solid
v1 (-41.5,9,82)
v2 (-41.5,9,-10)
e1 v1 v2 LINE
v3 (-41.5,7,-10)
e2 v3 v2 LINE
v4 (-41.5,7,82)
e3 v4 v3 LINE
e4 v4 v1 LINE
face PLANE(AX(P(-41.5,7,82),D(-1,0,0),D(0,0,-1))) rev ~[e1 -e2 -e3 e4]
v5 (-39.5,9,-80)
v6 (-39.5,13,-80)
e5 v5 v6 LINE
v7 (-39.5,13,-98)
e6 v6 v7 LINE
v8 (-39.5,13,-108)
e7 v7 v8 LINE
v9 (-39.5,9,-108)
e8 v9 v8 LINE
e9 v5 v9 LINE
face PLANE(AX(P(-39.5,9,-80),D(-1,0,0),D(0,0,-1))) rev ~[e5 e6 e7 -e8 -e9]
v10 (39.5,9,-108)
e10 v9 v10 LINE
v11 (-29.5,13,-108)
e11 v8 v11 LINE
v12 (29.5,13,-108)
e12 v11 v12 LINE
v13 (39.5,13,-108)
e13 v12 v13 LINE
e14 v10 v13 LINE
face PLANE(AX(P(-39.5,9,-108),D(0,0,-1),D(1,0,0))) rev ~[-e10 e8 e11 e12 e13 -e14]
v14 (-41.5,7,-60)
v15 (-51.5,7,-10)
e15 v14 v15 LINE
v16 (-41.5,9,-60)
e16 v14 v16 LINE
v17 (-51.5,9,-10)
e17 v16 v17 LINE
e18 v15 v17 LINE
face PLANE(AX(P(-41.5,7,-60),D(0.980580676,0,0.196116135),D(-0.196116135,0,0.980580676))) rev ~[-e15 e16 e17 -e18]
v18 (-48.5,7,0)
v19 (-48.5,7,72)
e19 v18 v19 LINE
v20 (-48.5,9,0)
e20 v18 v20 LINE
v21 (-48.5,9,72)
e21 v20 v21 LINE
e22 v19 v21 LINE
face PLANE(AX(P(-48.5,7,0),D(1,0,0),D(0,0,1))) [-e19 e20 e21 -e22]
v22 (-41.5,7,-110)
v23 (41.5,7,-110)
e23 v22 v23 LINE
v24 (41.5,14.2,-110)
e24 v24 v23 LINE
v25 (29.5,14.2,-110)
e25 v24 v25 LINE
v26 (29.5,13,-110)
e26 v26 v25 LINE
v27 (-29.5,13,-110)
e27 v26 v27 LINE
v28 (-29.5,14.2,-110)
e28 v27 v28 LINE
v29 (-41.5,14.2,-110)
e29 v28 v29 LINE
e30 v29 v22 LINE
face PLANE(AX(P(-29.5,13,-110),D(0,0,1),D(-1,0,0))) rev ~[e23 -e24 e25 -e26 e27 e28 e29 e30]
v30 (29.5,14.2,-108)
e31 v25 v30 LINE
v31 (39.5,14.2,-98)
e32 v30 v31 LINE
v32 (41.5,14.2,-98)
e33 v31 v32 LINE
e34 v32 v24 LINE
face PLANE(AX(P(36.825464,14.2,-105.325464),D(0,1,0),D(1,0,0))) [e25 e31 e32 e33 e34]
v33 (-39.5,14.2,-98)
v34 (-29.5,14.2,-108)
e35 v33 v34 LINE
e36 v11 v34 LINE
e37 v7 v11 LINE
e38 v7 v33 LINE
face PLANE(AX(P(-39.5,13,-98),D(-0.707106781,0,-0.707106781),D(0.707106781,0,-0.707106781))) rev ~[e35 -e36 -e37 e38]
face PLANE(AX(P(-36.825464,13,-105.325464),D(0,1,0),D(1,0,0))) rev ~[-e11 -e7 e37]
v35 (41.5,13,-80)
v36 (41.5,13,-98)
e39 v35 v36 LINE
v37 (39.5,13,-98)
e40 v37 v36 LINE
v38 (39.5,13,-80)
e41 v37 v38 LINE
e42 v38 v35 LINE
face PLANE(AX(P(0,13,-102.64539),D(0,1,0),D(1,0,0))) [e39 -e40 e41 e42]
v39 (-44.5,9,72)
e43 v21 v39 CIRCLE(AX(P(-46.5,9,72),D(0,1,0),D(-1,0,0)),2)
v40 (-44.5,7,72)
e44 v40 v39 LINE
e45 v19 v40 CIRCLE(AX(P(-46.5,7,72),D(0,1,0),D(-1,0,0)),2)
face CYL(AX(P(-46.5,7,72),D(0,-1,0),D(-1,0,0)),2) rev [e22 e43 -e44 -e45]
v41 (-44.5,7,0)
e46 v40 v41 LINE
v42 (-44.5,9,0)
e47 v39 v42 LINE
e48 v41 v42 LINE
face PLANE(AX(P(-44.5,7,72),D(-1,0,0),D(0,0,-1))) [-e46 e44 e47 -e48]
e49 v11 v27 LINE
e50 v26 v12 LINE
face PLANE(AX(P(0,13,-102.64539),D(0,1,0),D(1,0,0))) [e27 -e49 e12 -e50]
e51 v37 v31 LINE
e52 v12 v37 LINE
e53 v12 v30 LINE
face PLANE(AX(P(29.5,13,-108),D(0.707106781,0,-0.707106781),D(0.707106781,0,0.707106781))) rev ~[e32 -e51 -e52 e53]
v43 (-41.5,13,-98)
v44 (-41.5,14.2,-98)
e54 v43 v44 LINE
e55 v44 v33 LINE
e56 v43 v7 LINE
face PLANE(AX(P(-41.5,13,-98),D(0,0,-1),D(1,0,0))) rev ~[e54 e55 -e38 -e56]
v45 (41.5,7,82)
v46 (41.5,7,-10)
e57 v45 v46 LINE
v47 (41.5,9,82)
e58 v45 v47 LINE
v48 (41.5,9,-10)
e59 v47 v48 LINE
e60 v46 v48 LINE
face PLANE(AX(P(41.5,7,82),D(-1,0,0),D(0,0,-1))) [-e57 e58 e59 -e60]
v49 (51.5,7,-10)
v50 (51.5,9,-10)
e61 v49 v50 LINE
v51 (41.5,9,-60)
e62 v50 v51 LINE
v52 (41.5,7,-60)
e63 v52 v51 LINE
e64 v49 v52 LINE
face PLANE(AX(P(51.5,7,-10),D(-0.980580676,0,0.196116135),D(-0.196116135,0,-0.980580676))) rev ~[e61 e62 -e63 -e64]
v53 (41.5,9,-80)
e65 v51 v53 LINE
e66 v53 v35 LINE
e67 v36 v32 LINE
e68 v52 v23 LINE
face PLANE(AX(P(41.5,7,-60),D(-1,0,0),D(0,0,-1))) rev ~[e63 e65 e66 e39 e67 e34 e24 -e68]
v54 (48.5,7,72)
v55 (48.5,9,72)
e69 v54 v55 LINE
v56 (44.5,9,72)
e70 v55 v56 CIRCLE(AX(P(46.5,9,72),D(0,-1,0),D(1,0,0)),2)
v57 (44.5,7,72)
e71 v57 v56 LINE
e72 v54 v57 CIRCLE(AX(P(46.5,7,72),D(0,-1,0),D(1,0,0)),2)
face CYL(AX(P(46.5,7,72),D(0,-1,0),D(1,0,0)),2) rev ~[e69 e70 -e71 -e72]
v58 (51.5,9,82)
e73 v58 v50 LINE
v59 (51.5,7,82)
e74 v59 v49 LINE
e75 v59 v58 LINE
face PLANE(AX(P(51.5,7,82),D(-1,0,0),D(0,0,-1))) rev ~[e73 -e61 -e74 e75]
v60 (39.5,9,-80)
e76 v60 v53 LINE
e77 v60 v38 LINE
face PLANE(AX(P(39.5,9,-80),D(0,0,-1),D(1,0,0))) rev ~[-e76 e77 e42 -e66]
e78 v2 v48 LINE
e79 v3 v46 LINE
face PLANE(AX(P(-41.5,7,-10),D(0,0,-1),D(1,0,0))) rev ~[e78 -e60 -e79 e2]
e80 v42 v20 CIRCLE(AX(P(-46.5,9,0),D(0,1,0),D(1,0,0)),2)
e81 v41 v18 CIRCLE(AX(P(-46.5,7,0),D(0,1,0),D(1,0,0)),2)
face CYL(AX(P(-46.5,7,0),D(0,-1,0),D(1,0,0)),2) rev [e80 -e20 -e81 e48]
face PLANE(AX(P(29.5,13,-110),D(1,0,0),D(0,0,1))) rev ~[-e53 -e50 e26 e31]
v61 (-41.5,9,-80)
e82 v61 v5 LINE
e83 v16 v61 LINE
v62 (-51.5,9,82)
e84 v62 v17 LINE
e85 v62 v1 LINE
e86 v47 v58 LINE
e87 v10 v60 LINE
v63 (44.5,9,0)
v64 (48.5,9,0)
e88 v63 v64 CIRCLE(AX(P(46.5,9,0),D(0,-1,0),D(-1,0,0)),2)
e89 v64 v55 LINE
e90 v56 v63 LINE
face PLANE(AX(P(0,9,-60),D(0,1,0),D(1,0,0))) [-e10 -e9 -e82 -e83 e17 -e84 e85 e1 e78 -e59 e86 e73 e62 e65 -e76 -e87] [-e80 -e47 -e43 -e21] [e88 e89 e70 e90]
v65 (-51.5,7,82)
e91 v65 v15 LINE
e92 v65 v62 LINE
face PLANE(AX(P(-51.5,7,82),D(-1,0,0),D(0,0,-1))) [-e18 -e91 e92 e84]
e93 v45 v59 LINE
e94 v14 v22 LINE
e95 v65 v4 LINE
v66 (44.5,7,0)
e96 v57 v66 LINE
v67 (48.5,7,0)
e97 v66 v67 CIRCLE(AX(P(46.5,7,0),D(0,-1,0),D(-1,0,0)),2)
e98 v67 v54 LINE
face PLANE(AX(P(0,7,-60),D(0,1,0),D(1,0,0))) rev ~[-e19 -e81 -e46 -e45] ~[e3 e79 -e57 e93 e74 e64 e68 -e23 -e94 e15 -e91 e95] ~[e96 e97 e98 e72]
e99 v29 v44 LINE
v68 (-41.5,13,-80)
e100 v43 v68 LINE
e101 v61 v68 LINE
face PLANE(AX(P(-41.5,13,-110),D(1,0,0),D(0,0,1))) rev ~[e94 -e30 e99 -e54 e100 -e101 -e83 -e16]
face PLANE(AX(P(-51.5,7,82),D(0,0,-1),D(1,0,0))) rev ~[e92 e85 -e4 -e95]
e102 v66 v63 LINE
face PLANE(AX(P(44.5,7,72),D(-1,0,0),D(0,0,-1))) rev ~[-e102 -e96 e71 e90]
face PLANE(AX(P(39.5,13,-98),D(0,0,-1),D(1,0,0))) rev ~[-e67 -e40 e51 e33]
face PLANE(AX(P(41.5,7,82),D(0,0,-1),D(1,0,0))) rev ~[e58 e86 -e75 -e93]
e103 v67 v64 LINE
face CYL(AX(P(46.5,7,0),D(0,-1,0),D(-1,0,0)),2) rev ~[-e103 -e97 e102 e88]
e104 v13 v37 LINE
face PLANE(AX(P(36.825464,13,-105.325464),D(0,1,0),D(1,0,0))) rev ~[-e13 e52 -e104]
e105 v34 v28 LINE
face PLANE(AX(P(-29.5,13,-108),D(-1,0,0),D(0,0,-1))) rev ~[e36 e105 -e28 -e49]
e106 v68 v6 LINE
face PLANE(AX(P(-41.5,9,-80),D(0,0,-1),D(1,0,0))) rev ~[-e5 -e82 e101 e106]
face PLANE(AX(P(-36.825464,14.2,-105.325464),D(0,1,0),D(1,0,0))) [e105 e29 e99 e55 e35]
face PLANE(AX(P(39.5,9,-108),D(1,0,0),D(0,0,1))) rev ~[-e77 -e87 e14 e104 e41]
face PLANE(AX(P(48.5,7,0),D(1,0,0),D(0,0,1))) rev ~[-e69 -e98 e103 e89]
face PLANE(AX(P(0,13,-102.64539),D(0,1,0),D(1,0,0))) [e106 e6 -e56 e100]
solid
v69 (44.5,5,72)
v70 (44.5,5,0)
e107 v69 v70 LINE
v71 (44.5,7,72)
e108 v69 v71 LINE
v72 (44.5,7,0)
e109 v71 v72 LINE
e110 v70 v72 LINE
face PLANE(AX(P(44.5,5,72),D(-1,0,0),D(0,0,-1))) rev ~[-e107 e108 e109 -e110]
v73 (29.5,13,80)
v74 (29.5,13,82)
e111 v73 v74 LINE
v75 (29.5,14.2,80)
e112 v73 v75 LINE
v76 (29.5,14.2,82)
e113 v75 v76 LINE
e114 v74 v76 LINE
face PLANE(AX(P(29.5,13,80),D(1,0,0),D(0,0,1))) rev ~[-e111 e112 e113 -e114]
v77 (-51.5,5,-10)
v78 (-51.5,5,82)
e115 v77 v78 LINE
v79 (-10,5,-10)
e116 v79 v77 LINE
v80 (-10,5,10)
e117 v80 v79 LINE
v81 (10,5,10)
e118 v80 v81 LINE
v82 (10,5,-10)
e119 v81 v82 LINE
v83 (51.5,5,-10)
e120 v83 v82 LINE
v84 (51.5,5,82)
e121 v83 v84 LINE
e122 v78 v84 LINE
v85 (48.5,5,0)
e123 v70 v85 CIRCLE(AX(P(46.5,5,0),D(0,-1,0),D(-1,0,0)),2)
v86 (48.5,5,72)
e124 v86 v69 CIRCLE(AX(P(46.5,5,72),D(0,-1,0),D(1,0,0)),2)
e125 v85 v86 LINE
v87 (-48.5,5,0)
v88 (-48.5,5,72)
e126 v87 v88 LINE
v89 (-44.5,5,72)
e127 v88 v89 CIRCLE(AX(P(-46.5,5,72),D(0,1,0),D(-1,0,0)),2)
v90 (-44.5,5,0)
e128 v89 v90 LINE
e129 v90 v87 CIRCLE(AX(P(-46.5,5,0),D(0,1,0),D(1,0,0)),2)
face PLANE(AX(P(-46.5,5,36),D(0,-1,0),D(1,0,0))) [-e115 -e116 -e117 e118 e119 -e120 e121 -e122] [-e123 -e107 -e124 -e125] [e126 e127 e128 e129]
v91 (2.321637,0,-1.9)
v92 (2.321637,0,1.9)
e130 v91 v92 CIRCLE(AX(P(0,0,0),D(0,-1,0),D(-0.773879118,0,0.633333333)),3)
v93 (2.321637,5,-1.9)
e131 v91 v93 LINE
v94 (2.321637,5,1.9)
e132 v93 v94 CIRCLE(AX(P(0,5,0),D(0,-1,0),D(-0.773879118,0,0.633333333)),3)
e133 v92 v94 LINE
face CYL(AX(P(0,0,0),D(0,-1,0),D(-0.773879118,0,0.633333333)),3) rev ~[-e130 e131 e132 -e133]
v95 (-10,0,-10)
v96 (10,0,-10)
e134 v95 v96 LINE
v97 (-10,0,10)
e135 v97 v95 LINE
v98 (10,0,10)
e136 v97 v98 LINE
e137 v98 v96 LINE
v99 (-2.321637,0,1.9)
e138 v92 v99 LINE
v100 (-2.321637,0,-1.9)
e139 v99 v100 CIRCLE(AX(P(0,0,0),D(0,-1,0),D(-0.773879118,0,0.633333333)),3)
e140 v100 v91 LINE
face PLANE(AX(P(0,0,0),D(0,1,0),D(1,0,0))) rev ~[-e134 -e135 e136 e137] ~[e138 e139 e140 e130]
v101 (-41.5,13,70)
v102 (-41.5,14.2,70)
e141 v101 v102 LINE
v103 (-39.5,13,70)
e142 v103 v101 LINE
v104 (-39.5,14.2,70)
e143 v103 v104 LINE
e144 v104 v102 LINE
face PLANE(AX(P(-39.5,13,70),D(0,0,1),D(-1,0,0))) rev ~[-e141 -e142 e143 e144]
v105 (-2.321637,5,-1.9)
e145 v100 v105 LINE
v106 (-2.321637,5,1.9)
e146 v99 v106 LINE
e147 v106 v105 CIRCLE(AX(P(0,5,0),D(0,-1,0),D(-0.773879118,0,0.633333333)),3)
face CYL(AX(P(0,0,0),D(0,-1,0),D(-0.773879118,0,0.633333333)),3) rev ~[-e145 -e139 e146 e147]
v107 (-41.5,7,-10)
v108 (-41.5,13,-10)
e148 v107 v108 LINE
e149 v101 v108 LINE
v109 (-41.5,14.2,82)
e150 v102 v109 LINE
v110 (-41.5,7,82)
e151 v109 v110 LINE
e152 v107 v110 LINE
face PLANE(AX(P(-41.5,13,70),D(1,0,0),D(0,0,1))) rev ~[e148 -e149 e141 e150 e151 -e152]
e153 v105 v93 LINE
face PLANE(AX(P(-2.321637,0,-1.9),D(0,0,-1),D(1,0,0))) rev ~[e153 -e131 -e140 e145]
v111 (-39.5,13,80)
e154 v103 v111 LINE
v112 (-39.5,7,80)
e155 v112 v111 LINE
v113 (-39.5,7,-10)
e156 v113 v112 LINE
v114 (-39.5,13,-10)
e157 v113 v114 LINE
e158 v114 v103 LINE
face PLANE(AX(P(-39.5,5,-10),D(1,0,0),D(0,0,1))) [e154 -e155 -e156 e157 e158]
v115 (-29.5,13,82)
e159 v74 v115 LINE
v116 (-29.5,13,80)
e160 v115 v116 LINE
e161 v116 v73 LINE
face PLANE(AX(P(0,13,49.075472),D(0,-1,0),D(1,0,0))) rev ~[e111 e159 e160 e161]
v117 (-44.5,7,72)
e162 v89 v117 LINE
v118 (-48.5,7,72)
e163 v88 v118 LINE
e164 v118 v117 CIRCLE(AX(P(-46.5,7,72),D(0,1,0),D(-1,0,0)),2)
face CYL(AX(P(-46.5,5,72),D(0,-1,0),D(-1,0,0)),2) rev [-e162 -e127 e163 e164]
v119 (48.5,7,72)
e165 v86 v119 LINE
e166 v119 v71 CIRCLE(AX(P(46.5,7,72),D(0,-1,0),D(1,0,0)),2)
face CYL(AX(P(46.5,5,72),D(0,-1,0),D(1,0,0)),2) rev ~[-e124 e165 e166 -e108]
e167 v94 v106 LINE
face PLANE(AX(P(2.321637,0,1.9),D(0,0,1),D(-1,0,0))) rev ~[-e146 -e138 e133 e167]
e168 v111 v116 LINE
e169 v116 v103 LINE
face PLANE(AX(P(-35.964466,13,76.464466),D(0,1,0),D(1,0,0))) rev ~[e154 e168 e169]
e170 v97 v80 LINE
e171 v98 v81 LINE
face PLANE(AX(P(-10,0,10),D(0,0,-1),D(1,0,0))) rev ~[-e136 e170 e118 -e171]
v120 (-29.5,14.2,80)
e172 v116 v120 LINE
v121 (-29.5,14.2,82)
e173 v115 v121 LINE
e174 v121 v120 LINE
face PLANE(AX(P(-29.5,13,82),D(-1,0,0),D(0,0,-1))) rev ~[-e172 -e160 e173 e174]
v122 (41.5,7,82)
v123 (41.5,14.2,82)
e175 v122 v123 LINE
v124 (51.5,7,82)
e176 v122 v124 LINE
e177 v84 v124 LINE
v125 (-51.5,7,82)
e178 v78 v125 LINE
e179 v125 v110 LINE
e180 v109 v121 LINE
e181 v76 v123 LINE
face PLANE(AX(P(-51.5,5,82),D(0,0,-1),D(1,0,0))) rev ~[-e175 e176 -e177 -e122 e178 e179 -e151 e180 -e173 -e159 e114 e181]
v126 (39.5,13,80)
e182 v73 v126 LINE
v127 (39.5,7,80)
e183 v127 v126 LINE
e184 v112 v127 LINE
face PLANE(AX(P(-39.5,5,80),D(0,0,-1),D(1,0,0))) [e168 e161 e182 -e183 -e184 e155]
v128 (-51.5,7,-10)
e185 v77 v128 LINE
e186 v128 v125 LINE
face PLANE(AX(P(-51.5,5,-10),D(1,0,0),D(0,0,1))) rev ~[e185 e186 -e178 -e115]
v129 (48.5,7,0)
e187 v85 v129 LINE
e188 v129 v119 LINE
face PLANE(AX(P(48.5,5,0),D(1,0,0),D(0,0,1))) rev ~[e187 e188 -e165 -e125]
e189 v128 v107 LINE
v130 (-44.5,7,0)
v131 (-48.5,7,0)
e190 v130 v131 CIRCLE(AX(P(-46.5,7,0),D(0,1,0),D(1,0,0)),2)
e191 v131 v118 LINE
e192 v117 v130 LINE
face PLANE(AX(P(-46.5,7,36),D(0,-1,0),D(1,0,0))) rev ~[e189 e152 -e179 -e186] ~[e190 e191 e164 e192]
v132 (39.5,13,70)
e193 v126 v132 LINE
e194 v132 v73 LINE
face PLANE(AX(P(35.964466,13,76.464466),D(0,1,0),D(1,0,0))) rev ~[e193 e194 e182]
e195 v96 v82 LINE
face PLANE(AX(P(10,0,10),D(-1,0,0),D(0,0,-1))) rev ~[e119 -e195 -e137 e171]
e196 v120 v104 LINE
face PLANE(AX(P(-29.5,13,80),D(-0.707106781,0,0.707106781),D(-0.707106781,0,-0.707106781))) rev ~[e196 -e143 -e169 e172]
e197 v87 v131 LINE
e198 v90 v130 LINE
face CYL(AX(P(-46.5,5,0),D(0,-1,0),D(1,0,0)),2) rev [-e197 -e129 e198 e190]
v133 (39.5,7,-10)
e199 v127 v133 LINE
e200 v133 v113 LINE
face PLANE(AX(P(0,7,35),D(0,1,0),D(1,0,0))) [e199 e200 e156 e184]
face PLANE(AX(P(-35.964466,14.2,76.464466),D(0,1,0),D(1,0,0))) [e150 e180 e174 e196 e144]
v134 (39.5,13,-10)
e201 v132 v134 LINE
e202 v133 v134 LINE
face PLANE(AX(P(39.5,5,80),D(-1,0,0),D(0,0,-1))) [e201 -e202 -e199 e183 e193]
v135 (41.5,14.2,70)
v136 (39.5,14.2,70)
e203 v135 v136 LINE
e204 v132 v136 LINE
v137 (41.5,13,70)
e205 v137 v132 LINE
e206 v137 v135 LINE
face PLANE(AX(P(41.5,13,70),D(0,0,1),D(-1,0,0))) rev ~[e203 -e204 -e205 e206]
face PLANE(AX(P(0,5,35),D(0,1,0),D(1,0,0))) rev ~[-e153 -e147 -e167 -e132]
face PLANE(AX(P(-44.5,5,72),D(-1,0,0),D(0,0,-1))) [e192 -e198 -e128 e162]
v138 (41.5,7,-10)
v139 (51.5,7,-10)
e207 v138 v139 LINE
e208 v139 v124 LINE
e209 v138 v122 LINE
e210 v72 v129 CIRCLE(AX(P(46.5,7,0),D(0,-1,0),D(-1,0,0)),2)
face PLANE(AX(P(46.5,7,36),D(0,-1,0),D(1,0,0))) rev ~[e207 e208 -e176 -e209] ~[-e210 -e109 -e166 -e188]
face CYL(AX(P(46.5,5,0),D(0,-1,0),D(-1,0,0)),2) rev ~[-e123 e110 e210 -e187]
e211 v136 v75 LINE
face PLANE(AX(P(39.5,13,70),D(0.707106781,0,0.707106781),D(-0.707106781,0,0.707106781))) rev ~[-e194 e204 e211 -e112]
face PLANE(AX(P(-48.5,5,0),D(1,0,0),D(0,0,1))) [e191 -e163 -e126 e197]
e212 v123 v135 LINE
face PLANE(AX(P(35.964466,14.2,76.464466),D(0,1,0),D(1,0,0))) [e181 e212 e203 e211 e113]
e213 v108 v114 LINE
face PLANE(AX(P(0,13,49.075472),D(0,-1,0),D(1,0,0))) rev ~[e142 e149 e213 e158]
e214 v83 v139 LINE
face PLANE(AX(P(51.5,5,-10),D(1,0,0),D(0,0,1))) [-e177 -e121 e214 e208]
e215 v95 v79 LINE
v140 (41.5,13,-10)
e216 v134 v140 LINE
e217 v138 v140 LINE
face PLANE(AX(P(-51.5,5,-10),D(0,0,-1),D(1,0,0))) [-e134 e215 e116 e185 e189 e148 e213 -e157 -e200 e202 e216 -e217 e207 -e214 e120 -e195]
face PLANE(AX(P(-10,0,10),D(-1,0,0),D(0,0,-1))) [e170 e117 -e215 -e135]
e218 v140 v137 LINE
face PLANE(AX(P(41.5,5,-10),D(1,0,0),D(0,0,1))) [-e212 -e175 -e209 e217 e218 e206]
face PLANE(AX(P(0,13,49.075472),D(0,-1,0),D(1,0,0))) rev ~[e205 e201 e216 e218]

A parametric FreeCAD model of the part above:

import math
import FreeCAD as App
import Part
import Sketcher
Q = App.Units.Quantity

doc = App.newDocument("Part")
body = doc.addObject("PartDesign::Body", "Body")

sketch1 = body.newObject("Sketcher::SketchObject", "Sketch")
sketch1.AttachmentSupport = (doc.getObject("XZ_Plane"), [""])
sketch1.MapMode = "FlatFace"
sketch1.addGeometry(Part.LineSegment(App.Vector(-10, -10, 0), App.Vector(-10, 10, 0)), False)
sketch1.addGeometry(Part.LineSegment(App.Vector(-10, 10, 0), App.Vector(10, 10, 0)), False)
sketch1.addGeometry(Part.LineSegment(App.Vector(10, 10, 0), App.Vector(10, -10, 0)), False)
sketch1.addGeometry(Part.LineSegment(App.Vector(10, -10, 0), App.Vector(-10, -10, 0)), False)
sketch1.addGeometry(Part.ArcOfCircle(Part.Circle(App.Vector(0, 0, 0), App.Vector(0, 0, 1), 3), math.radians(141), math.radians(219)), False)
sketch1.addGeometry(Part.LineSegment(App.Vector(-2.3, -1.9, 0), App.Vector(2.3, -1.9, 0)), False)
sketch1.addGeometry(Part.ArcOfCircle(Part.Circle(App.Vector(0, 0, 0), App.Vector(0, 0, 1), 3), math.radians(-39), math.radians(39)), False)
sketch1.addGeometry(Part.LineSegment(App.Vector(2.3, 1.9, 0), App.Vector(-2.3, 1.9, 0)), False)
sketch1.addConstraint(Sketcher.Constraint("Coincident", 0, 2, 1, 1))
sketch1.addConstraint(Sketcher.Constraint("Coincident", 1, 2, 2, 1))
sketch1.addConstraint(Sketcher.Constraint("Coincident", 2, 2, 3, 1))
sketch1.addConstraint(Sketcher.Constraint("Coincident", 3, 2, 0, 1))
sketch1.addConstraint(Sketcher.Constraint("Coincident", 4, 2, 5, 1))
sketch1.addConstraint(Sketcher.Constraint("Coincident", 5, 2, 6, 1))
sketch1.addConstraint(Sketcher.Constraint("Coincident", 6, 2, 7, 1))
sketch1.addConstraint(Sketcher.Constraint("Coincident", 7, 2, 4, 1))
sketch1.addConstraint(Sketcher.Constraint("Vertical", 0))
sketch1.addConstraint(Sketcher.Constraint("Horizontal", 1))
sketch1.addConstraint(Sketcher.Constraint("Vertical", 2))
sketch1.addConstraint(Sketcher.Constraint("Horizontal", 3))
sketch1.addConstraint(Sketcher.Constraint("Horizontal", 5))
sketch1.addConstraint(Sketcher.Constraint("Horizontal", 7))
sketch1.addConstraint(Sketcher.Constraint("Coincident", 4, 3, -1, 1))
sketch1.addConstraint(Sketcher.Constraint("Coincident", 6, 3, -1, 1))
sketch1.addConstraint(Sketcher.Constraint("Equal", 4, 6))
sketch1.addConstraint(Sketcher.Constraint("Symmetric", 0, 2, 2, 2, -1, 1))
sketch1.addConstraint(Sketcher.Constraint("Vertical", 5, 2, 6, 2))
sketch1.addConstraint(Sketcher.Constraint("Equal", 3, 0))
sketch1.addConstraint(Sketcher.Constraint("Radius", 4, Q("3 mm")))
sketch1.addConstraint(Sketcher.Constraint("DistanceX", 1, 1, 1, 2, Q("20 mm")))
sketch1.addConstraint(Sketcher.Constraint("DistanceY", 4, 2, -1, 1, Q("1.9 mm")))
pad1 = body.newObject("PartDesign::Pad", "Pad")
pad1.Profile = sketch1
pad1.Length = 5
pad1.Reversed = True

sketch2 = body.newObject("Sketcher::SketchObject", "Sketch001")
sketch2.AttachmentSupport = (doc.getObject("XZ_Plane"), [""])
sketch2.MapMode = "FlatFace"
sketch2.AttachmentOffset = App.Placement(App.Vector(0, 0, -5), App.Rotation())
sketch2.addGeometry(Part.LineSegment(App.Vector(-40, -10, 0), App.Vector(-40, 80, 0)), False)
sketch2.addGeometry(Part.LineSegment(App.Vector(-40, 80, 0), App.Vector(40, 80, 0)), False)
sketch2.addGeometry(Part.LineSegment(App.Vector(40, 80, 0), App.Vector(40, -10, 0)), False)
sketch2.addGeometry(Part.LineSegment(App.Vector(40, -10, 0), App.Vector(-40, -10, 0)), False)
sketch2.addConstraint(Sketcher.Constraint("Coincident", 0, 2, 1, 1))
sketch2.addConstraint(Sketcher.Constraint("Coincident", 1, 2, 2, 1))
sketch2.addConstraint(Sketcher.Constraint("Coincident", 2, 2, 3, 1))
sketch2.addConstraint(Sketcher.Constraint("Coincident", 3, 2, 0, 1))
sketch2.addConstraint(Sketcher.Constraint("Vertical", 0))
sketch2.addConstraint(Sketcher.Constraint("Horizontal", 1))
sketch2.addConstraint(Sketcher.Constraint("Vertical", 2))
sketch2.addConstraint(Sketcher.Constraint("Horizontal", 3))
sketch2.addConstraint(Sketcher.Constraint("DistanceX", 1, 1, 1, 2, Q("79 mm")))
sketch2.addConstraint(Sketcher.Constraint("DistanceY", 0, 1, 0, 2, Q("90 mm")))
sketch2.addConstraint(Sketcher.Constraint("DistanceY", -1, 1, 0, 2, Q("80 mm")))
sketch2.addConstraint(Sketcher.Constraint("DistanceX", 0, 2, -1, 1, Q("39.5 mm")))
pad2 = body.newObject("PartDesign::Pad", "Pad001")
pad2.Profile = sketch2
pad2.Length = 2
pad2.Reversed = True

sketch3 = body.newObject("Sketcher::SketchObject", "Sketch002")
sketch3.AttachmentSupport = (doc.getObject("XZ_Plane"), [""])
sketch3.MapMode = "FlatFace"
sketch3.AttachmentOffset = App.Placement(App.Vector(0, 0, -5), App.Rotation())
sketch3.addGeometry(Part.LineSegment(App.Vector(39.5, 80, 0), App.Vector(39.5, -10, 0)), False)
sketch3.addGeometry(Part.LineSegment(App.Vector(39.5, -10, 0), App.Vector(41.5, -10, 0)), False)
sketch3.addGeometry(Part.LineSegment(App.Vector(41.5, -10, 0), App.Vector(41.5, 82, 0)), False)
sketch3.addGeometry(Part.LineSegment(App.Vector(41.5, 82, 0), App.Vector(-41.5, 82, 0)), False)
sketch3.addGeometry(Part.LineSegment(App.Vector(-41.5, 82, 0), App.Vector(-41.5, -10, 0)), False)
sketch3.addGeometry(Part.LineSegment(App.Vector(-41.5, -10, 0), App.Vector(-39.5, -10, 0)), False)
sketch3.addGeometry(Part.LineSegment(App.Vector(-39.5, -10, 0), App.Vector(-39.5, 80, 0)), False)
sketch3.addGeometry(Part.LineSegment(App.Vector(-39.5, 80, 0), App.Vector(39.5, 80, 0)), False)
sketch3.addConstraint(Sketcher.Constraint("Coincident", 0, 2, 1, 1))
sketch3.addConstraint(Sketcher.Constraint("Coincident", 1, 2, 2, 1))
sketch3.addConstraint(Sketcher.Constraint("Coincident", 2, 2, 3, 1))
sketch3.addConstraint(Sketcher.Constraint("Coincident", 3, 2, 4, 1))
sketch3.addConstraint(Sketcher.Constraint("Coincident", 4, 2, 5, 1))
sketch3.addConstraint(Sketcher.Constraint("Coincident", 5, 2, 6, 1))
sketch3.addConstraint(Sketcher.Constraint("Coincident", 6, 2, 7, 1))
sketch3.addConstraint(Sketcher.Constraint("Coincident", 7, 2, 0, 1))
sketch3.addConstraint(Sketcher.Constraint("Vertical", 0))
sketch3.addConstraint(Sketcher.Constraint("Horizontal", 1))
sketch3.addConstraint(Sketcher.Constraint("Vertical", 2))
sketch3.addConstraint(Sketcher.Constraint("Horizontal", 3))
sketch3.addConstraint(Sketcher.Constraint("Vertical", 4))
sketch3.addConstraint(Sketcher.Constraint("Horizontal", 5))
sketch3.addConstraint(Sketcher.Constraint("Vertical", 6))
sketch3.addConstraint(Sketcher.Constraint("Horizontal", 7))
sketch3.addConstraint(Sketcher.Constraint("Symmetric", 1, 2, 4, 2, -2))
sketch3.addConstraint(Sketcher.Constraint("Equal", 1, 5))
sketch3.addConstraint(Sketcher.Constraint("DistanceX", 1, 1, 1, 2, Q("2 mm")))
sketch3.addConstraint(Sketcher.Constraint("DistanceX", 3, 2, 3, 1, Q("83 mm")))
sketch3.addConstraint(Sketcher.Constraint("DistanceY", 0, 2, 0, 1, Q("90 mm")))
sketch3.addConstraint(Sketcher.Constraint("DistanceY", 2, 1, 2, 2, Q("92 mm")))
sketch3.addConstraint(Sketcher.Constraint("DistanceY", 0, 2, -1, 1, Q("10 mm")))
pad3 = body.newObject("PartDesign::Pad", "Pad002")
pad3.Profile = sketch3
pad3.Length = 8
pad3.Reversed = True

sketch4 = body.newObject("Sketcher::SketchObject", "Sketch003")
sketch4.AttachmentSupport = (doc.getObject("XZ_Plane"), [""])
sketch4.MapMode = "FlatFace"
sketch4.AttachmentOffset = App.Placement(App.Vector(0, 0, -13), App.Rotation())
sketch4.addGeometry(Part.LineSegment(App.Vector(-29.5, 80, 0), App.Vector(-39.5, 70, 0)), False)
sketch4.addGeometry(Part.LineSegment(App.Vector(-39.5, 70, 0), App.Vector(-41.5, 70, 0)), False)
sketch4.addGeometry(Part.LineSegment(App.Vector(-41.5, 70, 0), App.Vector(-41.5, 82, 0)), False)
sketch4.addGeometry(Part.LineSegment(App.Vector(-41.5, 82, 0), App.Vector(-29.5, 82, 0)), False)
sketch4.addGeometry(Part.LineSegment(App.Vector(-29.5, 82, 0), App.Vector(-29.5, 80, 0)), False)
sketch4.addGeometry(Part.LineSegment(App.Vector(39.5, 70, 0), App.Vector(29.5, 80, 0)), False)
sketch4.addGeometry(Part.LineSegment(App.Vector(29.5, 80, 0), App.Vector(29.5, 82, 0)), False)
sketch4.addGeometry(Part.LineSegment(App.Vector(29.5, 82, 0), App.Vector(41.5, 82, 0)), False)
sketch4.addGeometry(Part.LineSegment(App.Vector(41.5, 82, 0), App.Vector(41.5, 70, 0)), False)
sketch4.addGeometry(Part.LineSegment(App.Vector(41.5, 70, 0), App.Vector(39.5, 70, 0)), False)
sketch4.addConstraint(Sketcher.Constraint("Coincident", 0, 2, 1, 1))
sketch4.addConstraint(Sketcher.Constraint("Coincident", 1, 2, 2, 1))
sketch4.addConstraint(Sketcher.Constraint("Coincident", 2, 2, 3, 1))
sketch4.addConstraint(Sketcher.Constraint("Coincident", 3, 2, 4, 1))
sketch4.addConstraint(Sketcher.Constraint("Coincident", 4, 2, 0, 1))
sketch4.addConstraint(Sketcher.Constraint("Coincident", 5, 2, 6, 1))
sketch4.addConstraint(Sketcher.Constraint("Coincident", 6, 2, 7, 1))
sketch4.addConstraint(Sketcher.Constraint("Coincident", 7, 2, 8, 1))
sketch4.addConstraint(Sketcher.Constraint("Coincident", 8, 2, 9, 1))
sketch4.addConstraint(Sketcher.Constraint("Coincident", 9, 2, 5, 1))
sketch4.addConstraint(Sketcher.Constraint("Horizontal", 1))
sketch4.addConstraint(Sketcher.Constraint("Vertical", 2))
sketch4.addConstraint(Sketcher.Constraint("Horizontal", 3))
sketch4.addConstraint(Sketcher.Constraint("Vertical", 4))
sketch4.addConstraint(Sketcher.Constraint("Vertical", 6))
sketch4.addConstraint(Sketcher.Constraint("Horizontal", 7))
sketch4.addConstraint(Sketcher.Constraint("Vertical", 8))
sketch4.addConstraint(Sketcher.Constraint("Horizontal", 9))
sketch4.addConstraint(Sketcher.Constraint("Symmetric", 4, 2, 5, 2, -2))
sketch4.addConstraint(Sketcher.Constraint("Symmetric", 2, 2, 7, 2, -2))
sketch4.addConstraint(Sketcher.Constraint("Symmetric", 0, 2, 9, 2, -2))
sketch4.addConstraint(Sketcher.Constraint("Perpendicular", 0, 5))
sketch4.addConstraint(Sketcher.Constraint("Equal", 7, 2))
sketch4.addConstraint(Sketcher.Constraint("DistanceX", 1, 2, 1, 1, Q("2 mm")))
sketch4.addConstraint(Sketcher.Constraint("DistanceX", 3, 1, 3, 2, Q("12 mm")))
sketch4.addConstraint(Sketcher.Constraint("DistanceY", -1, 1, 0, 2, Q("70 mm")))
sketch4.addConstraint(Sketcher.Constraint("DistanceX", 4, 2, 5, 2, Q("59 mm")))
pad4 = body.newObject("PartDesign::Pad", "Pad003")
pad4.Profile = sketch4
pad4.Length = 1.2
pad4.Reversed = True

sketch5 = body.newObject("Sketcher::SketchObject", "Sketch004")
sketch5.AttachmentSupport = (doc.getObject("XZ_Plane"), [""])
sketch5.MapMode = "FlatFace"
sketch5.AttachmentOffset = App.Placement(App.Vector(0, 0, -5), App.Rotation())
sketch5.addGeometry(Part.LineSegment(App.Vector(-51.5, 82, 0), App.Vector(-51.5, -10, 0)), False)
sketch5.addGeometry(Part.LineSegment(App.Vector(-51.5, -10, 0), App.Vector(-41.5, -10, 0)), False)
sketch5.addGeometry(Part.LineSegment(App.Vector(-41.5, -10, 0), App.Vector(-41.5, 82, 0)), False)
sketch5.addGeometry(Part.LineSegment(App.Vector(-41.5, 82, 0), App.Vector(-51.5, 82, 0)), False)
sketch5.addGeometry(Part.ArcOfCircle(Part.Circle(App.Vector(-46.5, 0, 0), App.Vector(0, 0, 1), 2), math.radians(180), math.radians(360)), False)
sketch5.addGeometry(Part.LineSegment(App.Vector(-48.5, 0, 0), App.Vector(-48.5, 72, 0)), False)
sketch5.addGeometry(Part.ArcOfCircle(Part.Circle(App.Vector(-46.5, 72, 0), App.Vector(0, 0, 1), 2), math.radians(0), math.radians(180)), False)
sketch5.addGeometry(Part.LineSegment(App.Vector(-44.5, 72, 0), App.Vector(-44.5, 0, 0)), False)
sketch5.addGeometry(Part.LineSegment(App.Vector(41.5, 82, 0), App.Vector(41.5, -10, 0)), False)
sketch5.addGeometry(Part.LineSegment(App.Vector(41.5, -10, 0), App.Vector(51.5, -10, 0)), False)
sketch5.addGeometry(Part.LineSegment(App.Vector(51.5, -10, 0), App.Vector(51.5, 82, 0)), False)
sketch5.addGeometry(Part.LineSegment(App.Vector(51.5, 82, 0), App.Vector(41.5, 82, 0)), False)
sketch5.addGeometry(Part.LineSegment(App.Vector(48.5, 72, 0), App.Vector(48.5, 0, 0)), False)
sketch5.addGeometry(Part.ArcOfCircle(Part.Circle(App.Vector(46.5, 0, 0), App.Vector(0, 0, 1), 2), math.radians(180), math.radians(360)), False)
sketch5.addGeometry(Part.LineSegment(App.Vector(44.5, 0, 0), App.Vector(44.5, 72, 0)), False)
sketch5.addGeometry(Part.ArcOfCircle(Part.Circle(App.Vector(46.5, 72, 0), App.Vector(0, 0, 1), 2), math.radians(0), math.radians(180)), False)
sketch5.addConstraint(Sketcher.Constraint("Coincident", 0, 2, 1, 1))
sketch5.addConstraint(Sketcher.Constraint("Coincident", 1, 2, 2, 1))
sketch5.addConstraint(Sketcher.Constraint("Coincident", 2, 2, 3, 1))
sketch5.addConstraint(Sketcher.Constraint("Coincident", 3, 2, 0, 1))
sketch5.addConstraint(Sketcher.Constraint("Tangent", 4, 1, 5, 1))
sketch5.addConstraint(Sketcher.Constraint("Tangent", 5, 2, 6, 2))
sketch5.addConstraint(Sketcher.Constraint("Tangent", 6, 1, 7, 1))
sketch5.addConstraint(Sketcher.Constraint("Tangent", 7, 2, 4, 2))
sketch5.addConstraint(Sketcher.Constraint("Coincident", 8, 2, 9, 1))
sketch5.addConstraint(Sketcher.Constraint("Coincident", 9, 2, 10, 1))
sketch5.addConstraint(Sketcher.Constraint("Coincident", 10, 2, 11, 1))
sketch5.addConstraint(Sketcher.Constraint("Coincident", 11, 2, 8, 1))
sketch5.addConstraint(Sketcher.Constraint("Tangent", 12, 2, 13, 2))
sketch5.addConstraint(Sketcher.Constraint("Tangent", 13, 1, 14, 1))
sketch5.addConstraint(Sketcher.Constraint("Tangent", 14, 2, 15, 2))
sketch5.addConstraint(Sketcher.Constraint("Tangent", 15, 1, 12, 1))
sketch5.addConstraint(Sketcher.Constraint("Vertical", 0))
sketch5.addConstraint(Sketcher.Constraint("Horizontal", 1))
sketch5.addConstraint(Sketcher.Constraint("Vertical", 2))
sketch5.addConstraint(Sketcher.Constraint("Horizontal", 3))
sketch5.addConstraint(Sketcher.Constraint("Vertical", 5))
sketch5.addConstraint(Sketcher.Constraint("Vertical", 7))
sketch5.addConstraint(Sketcher.Constraint("Vertical", 8))
sketch5.addConstraint(Sketcher.Constraint("Horizontal", 9))
sketch5.addConstraint(Sketcher.Constraint("Vertical", 10))
sketch5.addConstraint(Sketcher.Constraint("Horizontal", 11))
sketch5.addConstraint(Sketcher.Constraint("Vertical", 12))
sketch5.addConstraint(Sketcher.Constraint("Vertical", 14))
sketch5.addConstraint(Sketcher.Constraint("Equal", 6, 13))
sketch5.addConstraint(Sketcher.Constraint("Symmetric", 4, 3, 13, 3, -1, 1))
sketch5.addConstraint(Sketcher.Constraint("Symmetric", 1, 2, 8, 2, -2))
sketch5.addConstraint(Sketcher.Constraint("Symmetric", 3, 2, 10, 2, -2))
sketch5.addConstraint(Sketcher.Constraint("PointOnObject", 4, 3, -1))
sketch5.addConstraint(Sketcher.Constraint("Horizontal", 6, 3, 15, 3))
sketch5.addConstraint(Sketcher.Constraint("Radius", 4, Q("2 mm")))
sketch5.addConstraint(Sketcher.Constraint("DistanceX", 1, 1, 1, 2, Q("10 mm")))
sketch5.addConstraint(Sketcher.Constraint("DistanceY", 0, 2, 0, 1, Q("92 mm")))
sketch5.addConstraint(Sketcher.Constraint("DistanceY", 5, 1, 5, 2, Q("72 mm")))
sketch5.addConstraint(Sketcher.Constraint("DistanceY", 0, 2, -1, 1, Q("10 mm")))
sketch5.addConstraint(Sketcher.Constraint("DistanceX", 4, 3, 13, 3, Q("93 mm")))
sketch5.addConstraint(Sketcher.Constraint("DistanceX", 0, 2, 4, 3, Q("5 mm")))
pad5 = body.newObject("PartDesign::Pad", "Pad004")
pad5.Profile = sketch5
pad5.Length = 2
pad5.Reversed = True
body2 = doc.addObject("PartDesign::Body", "Body001")

sketch6 = body2.newObject("Sketcher::SketchObject", "Sketch005")
sketch6.AttachmentSupport = (doc.getObject("XZ_Plane001"), [""])
sketch6.MapMode = "FlatFace"
sketch6.AttachmentOffset = App.Placement(App.Vector(0, 0, -7), App.Rotation())
sketch6.addGeometry(Part.LineSegment(App.Vector(-41.5, -110, 0), App.Vector(-41.5, -60, 0)), False)
sketch6.addGeometry(Part.LineSegment(App.Vector(-41.5, -60, 0), App.Vector(-51.5, -10, 0)), False)
sketch6.addGeometry(Part.LineSegment(App.Vector(-51.5, -10, 0), App.Vector(-51.5, 82, 0)), False)
sketch6.addGeometry(Part.LineSegment(App.Vector(-51.5, 82, 0), App.Vector(-41.5, 82, 0)), False)
sketch6.addGeometry(Part.LineSegment(App.Vector(-41.5, 82, 0), App.Vector(-41.5, -10, 0)), False)
sketch6.addGeometry(Part.LineSegment(App.Vector(-41.5, -10, 0), App.Vector(41.5, -10, 0)), False)
sketch6.addGeometry(Part.LineSegment(App.Vector(41.5, -10, 0), App.Vector(41.5, 82, 0)), False)
sketch6.addGeometry(Part.LineSegment(App.Vector(41.5, 82, 0), App.Vector(51.5, 82, 0)), False)
sketch6.addGeometry(Part.LineSegment(App.Vector(51.5, 82, 0), App.Vector(51.5, -10, 0)), False)
sketch6.addGeometry(Part.LineSegment(App.Vector(51.5, -10, 0), App.Vector(41.5, -60, 0)), False)
sketch6.addGeometry(Part.LineSegment(App.Vector(41.5, -60, 0), App.Vector(41.5, -110, 0)), False)
sketch6.addGeometry(Part.LineSegment(App.Vector(41.5, -110, 0), App.Vector(-41.5, -110, 0)), False)
sketch6.addGeometry(Part.ArcOfCircle(Part.Circle(App.Vector(-46.5, 0, 0), App.Vector(0, 0, 1), 2), math.radians(180), math.radians(360)), False)
sketch6.addGeometry(Part.LineSegment(App.Vector(-44.5, 0, 0), App.Vector(-44.5, 72, 0)), False)
sketch6.addGeometry(Part.ArcOfCircle(Part.Circle(App.Vector(-46.5, 72, 0), App.Vector(0, 0, 1), 2), math.radians(0), math.radians(180)), False)
sketch6.addGeometry(Part.LineSegment(App.Vector(-48.5, 72, 0), App.Vector(-48.5, 0, 0)), False)
sketch6.addGeometry(Part.ArcOfCircle(Part.Circle(App.Vector(46.5, 72, 0), App.Vector(0, 0, 1), 2), math.radians(0), math.radians(180)), False)
sketch6.addGeometry(Part.LineSegment(App.Vector(44.5, 72, 0), App.Vector(44.5, 0, 0)), False)
sketch6.addGeometry(Part.ArcOfCircle(Part.Circle(App.Vector(46.5, 0, 0), App.Vector(0, 0, 1), 2), math.radians(180), math.radians(360)), False)
sketch6.addGeometry(Part.LineSegment(App.Vector(48.5, 0, 0), App.Vector(48.5, 72, 0)), False)
sketch6.addConstraint(Sketcher.Constraint("Coincident", 0, 2, 1, 1))
sketch6.addConstraint(Sketcher.Constraint("Coincident", 1, 2, 2, 1))
sketch6.addConstraint(Sketcher.Constraint("Coincident", 2, 2, 3, 1))
sketch6.addConstraint(Sketcher.Constraint("Coincident", 3, 2, 4, 1))
sketch6.addConstraint(Sketcher.Constraint("Coincident", 4, 2, 5, 1))
sketch6.addConstraint(Sketcher.Constraint("Coincident", 5, 2, 6, 1))
sketch6.addConstraint(Sketcher.Constraint("Coincident", 6, 2, 7, 1))
sketch6.addConstraint(Sketcher.Constraint("Coincident", 7, 2, 8, 1))
sketch6.addConstraint(Sketcher.Constraint("Coincident", 8, 2, 9, 1))
sketch6.addConstraint(Sketcher.Constraint("Coincident", 9, 2, 10, 1))
sketch6.addConstraint(Sketcher.Constraint("Coincident", 10, 2, 11, 1))
sketch6.addConstraint(Sketcher.Constraint("Coincident", 11, 2, 0, 1))
sketch6.addConstraint(Sketcher.Constraint("Tangent", 12, 2, 13, 1))
sketch6.addConstraint(Sketcher.Constraint("Tangent", 13, 2, 14, 1))
sketch6.addConstraint(Sketcher.Constraint("Tangent", 14, 2, 15, 1))
sketch6.addConstraint(Sketcher.Constraint("Tangent", 15, 2, 12, 1))
sketch6.addConstraint(Sketcher.Constraint("Tangent", 16, 2, 17, 1))
sketch6.addConstraint(Sketcher.Constraint("Tangent", 17, 2, 18, 1))
sketch6.addConstraint(Sketcher.Constraint("Tangent", 18, 2, 19, 1))
sketch6.addConstraint(Sketcher.Constraint("Tangent", 19, 2, 16, 1))
sketch6.addConstraint(Sketcher.Constraint("Vertical", 0))
sketch6.addConstraint(Sketcher.Constraint("Vertical", 2))
sketch6.addConstraint(Sketcher.Constraint("Horizontal", 3))
sketch6.addConstraint(Sketcher.Constraint("Vertical", 4))
sketch6.addConstraint(Sketcher.Constraint("Horizontal", 5))
sketch6.addConstraint(Sketcher.Constraint("Vertical", 6))
sketch6.addConstraint(Sketcher.Constraint("Horizontal", 7))
sketch6.addConstraint(Sketcher.Constraint("Vertical", 8))
sketch6.addConstraint(Sketcher.Constraint("Vertical", 10))
sketch6.addConstraint(Sketcher.Constraint("Horizontal", 11))
sketch6.addConstraint(Sketcher.Constraint("Vertical", 13))
sketch6.addConstraint(Sketcher.Constraint("Vertical", 15))
sketch6.addConstraint(Sketcher.Constraint("Vertical", 17))
sketch6.addConstraint(Sketcher.Constraint("Vertical", 19))
sketch6.addConstraint(Sketcher.Constraint("Equal", 14, 16))
sketch6.addConstraint(Sketcher.Constraint("Symmetric", 12, 3, 18, 3, -1, 1))
sketch6.addConstraint(Sketcher.Constraint("Symmetric", 3, 2, 6, 2, -2))
sketch6.addConstraint(Sketcher.Constraint("Symmetric", 1, 2, 8, 2, -2))
sketch6.addConstraint(Sketcher.Constraint("Symmetric", 0, 2, 9, 2, -2))
sketch6.addConstraint(Sketcher.Constraint("PointOnObject", 12, 3, -1))
sketch6.addConstraint(Sketcher.Constraint("Horizontal", 14, 3, 16, 3))
sketch6.addConstraint(Sketcher.Constraint("Horizontal", 1, 2, 4, 2))
sketch6.addConstraint(Sketcher.Constraint("Vertical", 0, 2, 3, 2))
sketch6.addConstraint(Sketcher.Constraint("Radius", 12, Q("2 mm")))
sketch6.addConstraint(Sketcher.Constraint("DistanceX", 3, 1, 3, 2, Q("10 mm")))
sketch6.addConstraint(Sketcher.Constraint("DistanceX", 5, 1, 5, 2, Q("83 mm")))
sketch6.addConstraint(Sketcher.Constraint("DistanceY", 0, 1, 0, 2, Q("50 mm")))
sketch6.addConstraint(Sketcher.Constraint("DistanceY", 2, 1, 2, 2, Q("92 mm")))
sketch6.addConstraint(Sketcher.Constraint("DistanceY", 13, 1, 13, 2, Q("72 mm")))
sketch6.addConstraint(Sketcher.Constraint("DistanceY", 0, 2, -1, 1, Q("60 mm")))
sketch6.addConstraint(Sketcher.Constraint("DistanceY", 1, 2, -1, 1, Q("10 mm")))
sketch6.addConstraint(Sketcher.Constraint("DistanceX", 14, 3, 16, 3, Q("93 mm")))
pad6 = body2.newObject("PartDesign::Pad", "Pad005")
pad6.Profile = sketch6
pad6.Length = 2
pad6.Reversed = True

sketch7 = body2.newObject("Sketcher::SketchObject", "Sketch006")
sketch7.AttachmentSupport = (doc.getObject("XZ_Plane001"), [""])
sketch7.MapMode = "FlatFace"
sketch7.AttachmentOffset = App.Placement(App.Vector(0, 0, -9), App.Rotation())
sketch7.addGeometry(Part.LineSegment(App.Vector(-39.5, -80, 0), App.Vector(-39.5, -108, 0)), False)
sketch7.addGeometry(Part.LineSegment(App.Vector(-39.5, -108, 0), App.Vector(39.5, -108, 0)), False)
sketch7.addGeometry(Part.LineSegment(App.Vector(39.5, -108, 0), App.Vector(39.5, -80, 0)), False)
sketch7.addGeometry(Part.LineSegment(App.Vector(39.5, -80, 0), App.Vector(41.5, -80, 0)), False)
sketch7.addGeometry(Part.LineSegment(App.Vector(41.5, -80, 0), App.Vector(41.5, -110, 0)), False)
sketch7.addGeometry(Part.LineSegment(App.Vector(41.5, -110, 0), App.Vector(-41.5, -110, 0)), False)
sketch7.addGeometry(Part.LineSegment(App.Vector(-41.5, -110, 0), App.Vector(-41.5, -80, 0)), False)
sketch7.addGeometry(Part.LineSegment(App.Vector(-41.5, -80, 0), App.Vector(-39.5, -80, 0)), False)
sketch7.addConstraint(Sketcher.Constraint("Coincident", 0, 2, 1, 1))
sketch7.addConstraint(Sketcher.Constraint("Coincident", 1, 2, 2, 1))
sketch7.addConstraint(Sketcher.Constraint("Coincident", 2, 2, 3, 1))
sketch7.addConstraint(Sketcher.Constraint("Coincident", 3, 2, 4, 1))
sketch7.addConstraint(Sketcher.Constraint("Coincident", 4, 2, 5, 1))
sketch7.addConstraint(Sketcher.Constraint("Coincident", 5, 2, 6, 1))
sketch7.addConstraint(Sketcher.Constraint("Coincident", 6, 2, 7, 1))
sketch7.addConstraint(Sketcher.Constraint("Coincident", 7, 2, 0, 1))
sketch7.addConstraint(Sketcher.Constraint("Vertical", 0))
sketch7.addConstraint(Sketcher.Constraint("Horizontal", 1))
sketch7.addConstraint(Sketcher.Constraint("Vertical", 2))
sketch7.addConstraint(Sketcher.Constraint("Horizontal", 3))
sketch7.addConstraint(Sketcher.Constraint("Vertical", 4))
sketch7.addConstraint(Sketcher.Constraint("Horizontal", 5))
sketch7.addConstraint(Sketcher.Constraint("Vertical", 6))
sketch7.addConstraint(Sketcher.Constraint("Horizontal", 7))
sketch7.addConstraint(Sketcher.Constraint("Symmetric", 3, 2, 6, 2, -2))
sketch7.addConstraint(Sketcher.Constraint("Equal", 3, 7))
sketch7.addConstraint(Sketcher.Constraint("DistanceX", 1, 1, 1, 2, Q("79 mm")))
sketch7.addConstraint(Sketcher.Constraint("DistanceX", 3, 1, 3, 2, Q("2 mm")))
sketch7.addConstraint(Sketcher.Constraint("DistanceY", 0, 2, 0, 1, Q("28 mm")))
sketch7.addConstraint(Sketcher.Constraint("DistanceY", 4, 2, 4, 1, Q("30 mm")))
sketch7.addConstraint(Sketcher.Constraint("DistanceY", 0, 2, -1, 1, Q("108 mm")))
pad7 = body2.newObject("PartDesign::Pad", "Pad006")
pad7.Profile = sketch7
pad7.Length = 4
pad7.Reversed = True

sketch8 = body2.newObject("Sketcher::SketchObject", "Sketch007")
sketch8.AttachmentSupport = (doc.getObject("XZ_Plane001"), [""])
sketch8.MapMode = "FlatFace"
sketch8.AttachmentOffset = App.Placement(App.Vector(0, 0, -13), App.Rotation())
sketch8.addGeometry(Part.LineSegment(App.Vector(-39.5, -98, 0), App.Vector(-29.5, -108, 0)), False)
sketch8.addGeometry(Part.LineSegment(App.Vector(-29.5, -108, 0), App.Vector(-29.5, -110, 0)), False)
sketch8.addGeometry(Part.LineSegment(App.Vector(-29.5, -110, 0), App.Vector(-41.5, -110, 0)), False)
sketch8.addGeometry(Part.LineSegment(App.Vector(-41.5, -110, 0), App.Vector(-41.5, -98, 0)), False)
sketch8.addGeometry(Part.LineSegment(App.Vector(-41.5, -98, 0), App.Vector(-39.5, -98, 0)), False)
sketch8.addGeometry(Part.LineSegment(App.Vector(29.5, -108, 0), App.Vector(39.5, -98, 0)), False)
sketch8.addGeometry(Part.LineSegment(App.Vector(39.5, -98, 0), App.Vector(41.5, -98, 0)), False)
sketch8.addGeometry(Part.LineSegment(App.Vector(41.5, -98, 0), App.Vector(41.5, -110, 0)), False)
sketch8.addGeometry(Part.LineSegment(App.Vector(41.5, -110, 0), App.Vector(29.5, -110, 0)), False)
sketch8.addGeometry(Part.LineSegment(App.Vector(29.5, -110, 0), App.Vector(29.5, -108, 0)), False)
sketch8.addConstraint(Sketcher.Constraint("Coincident", 0, 2, 1, 1))
sketch8.addConstraint(Sketcher.Constraint("Coincident", 1, 2, 2, 1))
sketch8.addConstraint(Sketcher.Constraint("Coincident", 2, 2, 3, 1))
sketch8.addConstraint(Sketcher.Constraint("Coincident", 3, 2, 4, 1))
sketch8.addConstraint(Sketcher.Constraint("Coincident", 4, 2, 0, 1))
sketch8.addConstraint(Sketcher.Constraint("Coincident", 5, 2, 6, 1))
sketch8.addConstraint(Sketcher.Constraint("Coincident", 6, 2, 7, 1))
sketch8.addConstraint(Sketcher.Constraint("Coincident", 7, 2, 8, 1))
sketch8.addConstraint(Sketcher.Constraint("Coincident", 8, 2, 9, 1))
sketch8.addConstraint(Sketcher.Constraint("Coincident", 9, 2, 5, 1))
sketch8.addConstraint(Sketcher.Constraint("Vertical", 1))
sketch8.addConstraint(Sketcher.Constraint("Horizontal", 2))
sketch8.addConstraint(Sketcher.Constraint("Vertical", 3))
sketch8.addConstraint(Sketcher.Constraint("Horizontal", 4))
sketch8.addConstraint(Sketcher.Constraint("Horizontal", 6))
sketch8.addConstraint(Sketcher.Constraint("Vertical", 7))
sketch8.addConstraint(Sketcher.Constraint("Horizontal", 8))
sketch8.addConstraint(Sketcher.Constraint("Vertical", 9))
sketch8.addConstraint(Sketcher.Constraint("Symmetric", 4, 2, 5, 2, -2))
sketch8.addConstraint(Sketcher.Constraint("Symmetric", 2, 2, 7, 2, -2))
sketch8.addConstraint(Sketcher.Constraint("Symmetric", 0, 2, 9, 2, -2))
sketch8.addConstraint(Sketcher.Constraint("Perpendicular", 0, 5))
sketch8.addConstraint(Sketcher.Constraint("Equal", 6, 1))
sketch8.addConstraint(Sketcher.Constraint("DistanceX", 2, 2, 2, 1, Q("12 mm")))
sketch8.addConstraint(Sketcher.Constraint("DistanceX", 4, 1, 4, 2, Q("2 mm")))
sketch8.addConstraint(Sketcher.Constraint("DistanceY", 0, 2, -1, 1, Q("108 mm")))
sketch8.addConstraint(Sketcher.Constraint("DistanceX", 0, 2, 5, 2, Q("69 mm")))
pad8 = body2.newObject("PartDesign::Pad", "Pad007")
pad8.Profile = sketch8
pad8.Length = 1.2
pad8.Reversed = True

doc.recompute()
